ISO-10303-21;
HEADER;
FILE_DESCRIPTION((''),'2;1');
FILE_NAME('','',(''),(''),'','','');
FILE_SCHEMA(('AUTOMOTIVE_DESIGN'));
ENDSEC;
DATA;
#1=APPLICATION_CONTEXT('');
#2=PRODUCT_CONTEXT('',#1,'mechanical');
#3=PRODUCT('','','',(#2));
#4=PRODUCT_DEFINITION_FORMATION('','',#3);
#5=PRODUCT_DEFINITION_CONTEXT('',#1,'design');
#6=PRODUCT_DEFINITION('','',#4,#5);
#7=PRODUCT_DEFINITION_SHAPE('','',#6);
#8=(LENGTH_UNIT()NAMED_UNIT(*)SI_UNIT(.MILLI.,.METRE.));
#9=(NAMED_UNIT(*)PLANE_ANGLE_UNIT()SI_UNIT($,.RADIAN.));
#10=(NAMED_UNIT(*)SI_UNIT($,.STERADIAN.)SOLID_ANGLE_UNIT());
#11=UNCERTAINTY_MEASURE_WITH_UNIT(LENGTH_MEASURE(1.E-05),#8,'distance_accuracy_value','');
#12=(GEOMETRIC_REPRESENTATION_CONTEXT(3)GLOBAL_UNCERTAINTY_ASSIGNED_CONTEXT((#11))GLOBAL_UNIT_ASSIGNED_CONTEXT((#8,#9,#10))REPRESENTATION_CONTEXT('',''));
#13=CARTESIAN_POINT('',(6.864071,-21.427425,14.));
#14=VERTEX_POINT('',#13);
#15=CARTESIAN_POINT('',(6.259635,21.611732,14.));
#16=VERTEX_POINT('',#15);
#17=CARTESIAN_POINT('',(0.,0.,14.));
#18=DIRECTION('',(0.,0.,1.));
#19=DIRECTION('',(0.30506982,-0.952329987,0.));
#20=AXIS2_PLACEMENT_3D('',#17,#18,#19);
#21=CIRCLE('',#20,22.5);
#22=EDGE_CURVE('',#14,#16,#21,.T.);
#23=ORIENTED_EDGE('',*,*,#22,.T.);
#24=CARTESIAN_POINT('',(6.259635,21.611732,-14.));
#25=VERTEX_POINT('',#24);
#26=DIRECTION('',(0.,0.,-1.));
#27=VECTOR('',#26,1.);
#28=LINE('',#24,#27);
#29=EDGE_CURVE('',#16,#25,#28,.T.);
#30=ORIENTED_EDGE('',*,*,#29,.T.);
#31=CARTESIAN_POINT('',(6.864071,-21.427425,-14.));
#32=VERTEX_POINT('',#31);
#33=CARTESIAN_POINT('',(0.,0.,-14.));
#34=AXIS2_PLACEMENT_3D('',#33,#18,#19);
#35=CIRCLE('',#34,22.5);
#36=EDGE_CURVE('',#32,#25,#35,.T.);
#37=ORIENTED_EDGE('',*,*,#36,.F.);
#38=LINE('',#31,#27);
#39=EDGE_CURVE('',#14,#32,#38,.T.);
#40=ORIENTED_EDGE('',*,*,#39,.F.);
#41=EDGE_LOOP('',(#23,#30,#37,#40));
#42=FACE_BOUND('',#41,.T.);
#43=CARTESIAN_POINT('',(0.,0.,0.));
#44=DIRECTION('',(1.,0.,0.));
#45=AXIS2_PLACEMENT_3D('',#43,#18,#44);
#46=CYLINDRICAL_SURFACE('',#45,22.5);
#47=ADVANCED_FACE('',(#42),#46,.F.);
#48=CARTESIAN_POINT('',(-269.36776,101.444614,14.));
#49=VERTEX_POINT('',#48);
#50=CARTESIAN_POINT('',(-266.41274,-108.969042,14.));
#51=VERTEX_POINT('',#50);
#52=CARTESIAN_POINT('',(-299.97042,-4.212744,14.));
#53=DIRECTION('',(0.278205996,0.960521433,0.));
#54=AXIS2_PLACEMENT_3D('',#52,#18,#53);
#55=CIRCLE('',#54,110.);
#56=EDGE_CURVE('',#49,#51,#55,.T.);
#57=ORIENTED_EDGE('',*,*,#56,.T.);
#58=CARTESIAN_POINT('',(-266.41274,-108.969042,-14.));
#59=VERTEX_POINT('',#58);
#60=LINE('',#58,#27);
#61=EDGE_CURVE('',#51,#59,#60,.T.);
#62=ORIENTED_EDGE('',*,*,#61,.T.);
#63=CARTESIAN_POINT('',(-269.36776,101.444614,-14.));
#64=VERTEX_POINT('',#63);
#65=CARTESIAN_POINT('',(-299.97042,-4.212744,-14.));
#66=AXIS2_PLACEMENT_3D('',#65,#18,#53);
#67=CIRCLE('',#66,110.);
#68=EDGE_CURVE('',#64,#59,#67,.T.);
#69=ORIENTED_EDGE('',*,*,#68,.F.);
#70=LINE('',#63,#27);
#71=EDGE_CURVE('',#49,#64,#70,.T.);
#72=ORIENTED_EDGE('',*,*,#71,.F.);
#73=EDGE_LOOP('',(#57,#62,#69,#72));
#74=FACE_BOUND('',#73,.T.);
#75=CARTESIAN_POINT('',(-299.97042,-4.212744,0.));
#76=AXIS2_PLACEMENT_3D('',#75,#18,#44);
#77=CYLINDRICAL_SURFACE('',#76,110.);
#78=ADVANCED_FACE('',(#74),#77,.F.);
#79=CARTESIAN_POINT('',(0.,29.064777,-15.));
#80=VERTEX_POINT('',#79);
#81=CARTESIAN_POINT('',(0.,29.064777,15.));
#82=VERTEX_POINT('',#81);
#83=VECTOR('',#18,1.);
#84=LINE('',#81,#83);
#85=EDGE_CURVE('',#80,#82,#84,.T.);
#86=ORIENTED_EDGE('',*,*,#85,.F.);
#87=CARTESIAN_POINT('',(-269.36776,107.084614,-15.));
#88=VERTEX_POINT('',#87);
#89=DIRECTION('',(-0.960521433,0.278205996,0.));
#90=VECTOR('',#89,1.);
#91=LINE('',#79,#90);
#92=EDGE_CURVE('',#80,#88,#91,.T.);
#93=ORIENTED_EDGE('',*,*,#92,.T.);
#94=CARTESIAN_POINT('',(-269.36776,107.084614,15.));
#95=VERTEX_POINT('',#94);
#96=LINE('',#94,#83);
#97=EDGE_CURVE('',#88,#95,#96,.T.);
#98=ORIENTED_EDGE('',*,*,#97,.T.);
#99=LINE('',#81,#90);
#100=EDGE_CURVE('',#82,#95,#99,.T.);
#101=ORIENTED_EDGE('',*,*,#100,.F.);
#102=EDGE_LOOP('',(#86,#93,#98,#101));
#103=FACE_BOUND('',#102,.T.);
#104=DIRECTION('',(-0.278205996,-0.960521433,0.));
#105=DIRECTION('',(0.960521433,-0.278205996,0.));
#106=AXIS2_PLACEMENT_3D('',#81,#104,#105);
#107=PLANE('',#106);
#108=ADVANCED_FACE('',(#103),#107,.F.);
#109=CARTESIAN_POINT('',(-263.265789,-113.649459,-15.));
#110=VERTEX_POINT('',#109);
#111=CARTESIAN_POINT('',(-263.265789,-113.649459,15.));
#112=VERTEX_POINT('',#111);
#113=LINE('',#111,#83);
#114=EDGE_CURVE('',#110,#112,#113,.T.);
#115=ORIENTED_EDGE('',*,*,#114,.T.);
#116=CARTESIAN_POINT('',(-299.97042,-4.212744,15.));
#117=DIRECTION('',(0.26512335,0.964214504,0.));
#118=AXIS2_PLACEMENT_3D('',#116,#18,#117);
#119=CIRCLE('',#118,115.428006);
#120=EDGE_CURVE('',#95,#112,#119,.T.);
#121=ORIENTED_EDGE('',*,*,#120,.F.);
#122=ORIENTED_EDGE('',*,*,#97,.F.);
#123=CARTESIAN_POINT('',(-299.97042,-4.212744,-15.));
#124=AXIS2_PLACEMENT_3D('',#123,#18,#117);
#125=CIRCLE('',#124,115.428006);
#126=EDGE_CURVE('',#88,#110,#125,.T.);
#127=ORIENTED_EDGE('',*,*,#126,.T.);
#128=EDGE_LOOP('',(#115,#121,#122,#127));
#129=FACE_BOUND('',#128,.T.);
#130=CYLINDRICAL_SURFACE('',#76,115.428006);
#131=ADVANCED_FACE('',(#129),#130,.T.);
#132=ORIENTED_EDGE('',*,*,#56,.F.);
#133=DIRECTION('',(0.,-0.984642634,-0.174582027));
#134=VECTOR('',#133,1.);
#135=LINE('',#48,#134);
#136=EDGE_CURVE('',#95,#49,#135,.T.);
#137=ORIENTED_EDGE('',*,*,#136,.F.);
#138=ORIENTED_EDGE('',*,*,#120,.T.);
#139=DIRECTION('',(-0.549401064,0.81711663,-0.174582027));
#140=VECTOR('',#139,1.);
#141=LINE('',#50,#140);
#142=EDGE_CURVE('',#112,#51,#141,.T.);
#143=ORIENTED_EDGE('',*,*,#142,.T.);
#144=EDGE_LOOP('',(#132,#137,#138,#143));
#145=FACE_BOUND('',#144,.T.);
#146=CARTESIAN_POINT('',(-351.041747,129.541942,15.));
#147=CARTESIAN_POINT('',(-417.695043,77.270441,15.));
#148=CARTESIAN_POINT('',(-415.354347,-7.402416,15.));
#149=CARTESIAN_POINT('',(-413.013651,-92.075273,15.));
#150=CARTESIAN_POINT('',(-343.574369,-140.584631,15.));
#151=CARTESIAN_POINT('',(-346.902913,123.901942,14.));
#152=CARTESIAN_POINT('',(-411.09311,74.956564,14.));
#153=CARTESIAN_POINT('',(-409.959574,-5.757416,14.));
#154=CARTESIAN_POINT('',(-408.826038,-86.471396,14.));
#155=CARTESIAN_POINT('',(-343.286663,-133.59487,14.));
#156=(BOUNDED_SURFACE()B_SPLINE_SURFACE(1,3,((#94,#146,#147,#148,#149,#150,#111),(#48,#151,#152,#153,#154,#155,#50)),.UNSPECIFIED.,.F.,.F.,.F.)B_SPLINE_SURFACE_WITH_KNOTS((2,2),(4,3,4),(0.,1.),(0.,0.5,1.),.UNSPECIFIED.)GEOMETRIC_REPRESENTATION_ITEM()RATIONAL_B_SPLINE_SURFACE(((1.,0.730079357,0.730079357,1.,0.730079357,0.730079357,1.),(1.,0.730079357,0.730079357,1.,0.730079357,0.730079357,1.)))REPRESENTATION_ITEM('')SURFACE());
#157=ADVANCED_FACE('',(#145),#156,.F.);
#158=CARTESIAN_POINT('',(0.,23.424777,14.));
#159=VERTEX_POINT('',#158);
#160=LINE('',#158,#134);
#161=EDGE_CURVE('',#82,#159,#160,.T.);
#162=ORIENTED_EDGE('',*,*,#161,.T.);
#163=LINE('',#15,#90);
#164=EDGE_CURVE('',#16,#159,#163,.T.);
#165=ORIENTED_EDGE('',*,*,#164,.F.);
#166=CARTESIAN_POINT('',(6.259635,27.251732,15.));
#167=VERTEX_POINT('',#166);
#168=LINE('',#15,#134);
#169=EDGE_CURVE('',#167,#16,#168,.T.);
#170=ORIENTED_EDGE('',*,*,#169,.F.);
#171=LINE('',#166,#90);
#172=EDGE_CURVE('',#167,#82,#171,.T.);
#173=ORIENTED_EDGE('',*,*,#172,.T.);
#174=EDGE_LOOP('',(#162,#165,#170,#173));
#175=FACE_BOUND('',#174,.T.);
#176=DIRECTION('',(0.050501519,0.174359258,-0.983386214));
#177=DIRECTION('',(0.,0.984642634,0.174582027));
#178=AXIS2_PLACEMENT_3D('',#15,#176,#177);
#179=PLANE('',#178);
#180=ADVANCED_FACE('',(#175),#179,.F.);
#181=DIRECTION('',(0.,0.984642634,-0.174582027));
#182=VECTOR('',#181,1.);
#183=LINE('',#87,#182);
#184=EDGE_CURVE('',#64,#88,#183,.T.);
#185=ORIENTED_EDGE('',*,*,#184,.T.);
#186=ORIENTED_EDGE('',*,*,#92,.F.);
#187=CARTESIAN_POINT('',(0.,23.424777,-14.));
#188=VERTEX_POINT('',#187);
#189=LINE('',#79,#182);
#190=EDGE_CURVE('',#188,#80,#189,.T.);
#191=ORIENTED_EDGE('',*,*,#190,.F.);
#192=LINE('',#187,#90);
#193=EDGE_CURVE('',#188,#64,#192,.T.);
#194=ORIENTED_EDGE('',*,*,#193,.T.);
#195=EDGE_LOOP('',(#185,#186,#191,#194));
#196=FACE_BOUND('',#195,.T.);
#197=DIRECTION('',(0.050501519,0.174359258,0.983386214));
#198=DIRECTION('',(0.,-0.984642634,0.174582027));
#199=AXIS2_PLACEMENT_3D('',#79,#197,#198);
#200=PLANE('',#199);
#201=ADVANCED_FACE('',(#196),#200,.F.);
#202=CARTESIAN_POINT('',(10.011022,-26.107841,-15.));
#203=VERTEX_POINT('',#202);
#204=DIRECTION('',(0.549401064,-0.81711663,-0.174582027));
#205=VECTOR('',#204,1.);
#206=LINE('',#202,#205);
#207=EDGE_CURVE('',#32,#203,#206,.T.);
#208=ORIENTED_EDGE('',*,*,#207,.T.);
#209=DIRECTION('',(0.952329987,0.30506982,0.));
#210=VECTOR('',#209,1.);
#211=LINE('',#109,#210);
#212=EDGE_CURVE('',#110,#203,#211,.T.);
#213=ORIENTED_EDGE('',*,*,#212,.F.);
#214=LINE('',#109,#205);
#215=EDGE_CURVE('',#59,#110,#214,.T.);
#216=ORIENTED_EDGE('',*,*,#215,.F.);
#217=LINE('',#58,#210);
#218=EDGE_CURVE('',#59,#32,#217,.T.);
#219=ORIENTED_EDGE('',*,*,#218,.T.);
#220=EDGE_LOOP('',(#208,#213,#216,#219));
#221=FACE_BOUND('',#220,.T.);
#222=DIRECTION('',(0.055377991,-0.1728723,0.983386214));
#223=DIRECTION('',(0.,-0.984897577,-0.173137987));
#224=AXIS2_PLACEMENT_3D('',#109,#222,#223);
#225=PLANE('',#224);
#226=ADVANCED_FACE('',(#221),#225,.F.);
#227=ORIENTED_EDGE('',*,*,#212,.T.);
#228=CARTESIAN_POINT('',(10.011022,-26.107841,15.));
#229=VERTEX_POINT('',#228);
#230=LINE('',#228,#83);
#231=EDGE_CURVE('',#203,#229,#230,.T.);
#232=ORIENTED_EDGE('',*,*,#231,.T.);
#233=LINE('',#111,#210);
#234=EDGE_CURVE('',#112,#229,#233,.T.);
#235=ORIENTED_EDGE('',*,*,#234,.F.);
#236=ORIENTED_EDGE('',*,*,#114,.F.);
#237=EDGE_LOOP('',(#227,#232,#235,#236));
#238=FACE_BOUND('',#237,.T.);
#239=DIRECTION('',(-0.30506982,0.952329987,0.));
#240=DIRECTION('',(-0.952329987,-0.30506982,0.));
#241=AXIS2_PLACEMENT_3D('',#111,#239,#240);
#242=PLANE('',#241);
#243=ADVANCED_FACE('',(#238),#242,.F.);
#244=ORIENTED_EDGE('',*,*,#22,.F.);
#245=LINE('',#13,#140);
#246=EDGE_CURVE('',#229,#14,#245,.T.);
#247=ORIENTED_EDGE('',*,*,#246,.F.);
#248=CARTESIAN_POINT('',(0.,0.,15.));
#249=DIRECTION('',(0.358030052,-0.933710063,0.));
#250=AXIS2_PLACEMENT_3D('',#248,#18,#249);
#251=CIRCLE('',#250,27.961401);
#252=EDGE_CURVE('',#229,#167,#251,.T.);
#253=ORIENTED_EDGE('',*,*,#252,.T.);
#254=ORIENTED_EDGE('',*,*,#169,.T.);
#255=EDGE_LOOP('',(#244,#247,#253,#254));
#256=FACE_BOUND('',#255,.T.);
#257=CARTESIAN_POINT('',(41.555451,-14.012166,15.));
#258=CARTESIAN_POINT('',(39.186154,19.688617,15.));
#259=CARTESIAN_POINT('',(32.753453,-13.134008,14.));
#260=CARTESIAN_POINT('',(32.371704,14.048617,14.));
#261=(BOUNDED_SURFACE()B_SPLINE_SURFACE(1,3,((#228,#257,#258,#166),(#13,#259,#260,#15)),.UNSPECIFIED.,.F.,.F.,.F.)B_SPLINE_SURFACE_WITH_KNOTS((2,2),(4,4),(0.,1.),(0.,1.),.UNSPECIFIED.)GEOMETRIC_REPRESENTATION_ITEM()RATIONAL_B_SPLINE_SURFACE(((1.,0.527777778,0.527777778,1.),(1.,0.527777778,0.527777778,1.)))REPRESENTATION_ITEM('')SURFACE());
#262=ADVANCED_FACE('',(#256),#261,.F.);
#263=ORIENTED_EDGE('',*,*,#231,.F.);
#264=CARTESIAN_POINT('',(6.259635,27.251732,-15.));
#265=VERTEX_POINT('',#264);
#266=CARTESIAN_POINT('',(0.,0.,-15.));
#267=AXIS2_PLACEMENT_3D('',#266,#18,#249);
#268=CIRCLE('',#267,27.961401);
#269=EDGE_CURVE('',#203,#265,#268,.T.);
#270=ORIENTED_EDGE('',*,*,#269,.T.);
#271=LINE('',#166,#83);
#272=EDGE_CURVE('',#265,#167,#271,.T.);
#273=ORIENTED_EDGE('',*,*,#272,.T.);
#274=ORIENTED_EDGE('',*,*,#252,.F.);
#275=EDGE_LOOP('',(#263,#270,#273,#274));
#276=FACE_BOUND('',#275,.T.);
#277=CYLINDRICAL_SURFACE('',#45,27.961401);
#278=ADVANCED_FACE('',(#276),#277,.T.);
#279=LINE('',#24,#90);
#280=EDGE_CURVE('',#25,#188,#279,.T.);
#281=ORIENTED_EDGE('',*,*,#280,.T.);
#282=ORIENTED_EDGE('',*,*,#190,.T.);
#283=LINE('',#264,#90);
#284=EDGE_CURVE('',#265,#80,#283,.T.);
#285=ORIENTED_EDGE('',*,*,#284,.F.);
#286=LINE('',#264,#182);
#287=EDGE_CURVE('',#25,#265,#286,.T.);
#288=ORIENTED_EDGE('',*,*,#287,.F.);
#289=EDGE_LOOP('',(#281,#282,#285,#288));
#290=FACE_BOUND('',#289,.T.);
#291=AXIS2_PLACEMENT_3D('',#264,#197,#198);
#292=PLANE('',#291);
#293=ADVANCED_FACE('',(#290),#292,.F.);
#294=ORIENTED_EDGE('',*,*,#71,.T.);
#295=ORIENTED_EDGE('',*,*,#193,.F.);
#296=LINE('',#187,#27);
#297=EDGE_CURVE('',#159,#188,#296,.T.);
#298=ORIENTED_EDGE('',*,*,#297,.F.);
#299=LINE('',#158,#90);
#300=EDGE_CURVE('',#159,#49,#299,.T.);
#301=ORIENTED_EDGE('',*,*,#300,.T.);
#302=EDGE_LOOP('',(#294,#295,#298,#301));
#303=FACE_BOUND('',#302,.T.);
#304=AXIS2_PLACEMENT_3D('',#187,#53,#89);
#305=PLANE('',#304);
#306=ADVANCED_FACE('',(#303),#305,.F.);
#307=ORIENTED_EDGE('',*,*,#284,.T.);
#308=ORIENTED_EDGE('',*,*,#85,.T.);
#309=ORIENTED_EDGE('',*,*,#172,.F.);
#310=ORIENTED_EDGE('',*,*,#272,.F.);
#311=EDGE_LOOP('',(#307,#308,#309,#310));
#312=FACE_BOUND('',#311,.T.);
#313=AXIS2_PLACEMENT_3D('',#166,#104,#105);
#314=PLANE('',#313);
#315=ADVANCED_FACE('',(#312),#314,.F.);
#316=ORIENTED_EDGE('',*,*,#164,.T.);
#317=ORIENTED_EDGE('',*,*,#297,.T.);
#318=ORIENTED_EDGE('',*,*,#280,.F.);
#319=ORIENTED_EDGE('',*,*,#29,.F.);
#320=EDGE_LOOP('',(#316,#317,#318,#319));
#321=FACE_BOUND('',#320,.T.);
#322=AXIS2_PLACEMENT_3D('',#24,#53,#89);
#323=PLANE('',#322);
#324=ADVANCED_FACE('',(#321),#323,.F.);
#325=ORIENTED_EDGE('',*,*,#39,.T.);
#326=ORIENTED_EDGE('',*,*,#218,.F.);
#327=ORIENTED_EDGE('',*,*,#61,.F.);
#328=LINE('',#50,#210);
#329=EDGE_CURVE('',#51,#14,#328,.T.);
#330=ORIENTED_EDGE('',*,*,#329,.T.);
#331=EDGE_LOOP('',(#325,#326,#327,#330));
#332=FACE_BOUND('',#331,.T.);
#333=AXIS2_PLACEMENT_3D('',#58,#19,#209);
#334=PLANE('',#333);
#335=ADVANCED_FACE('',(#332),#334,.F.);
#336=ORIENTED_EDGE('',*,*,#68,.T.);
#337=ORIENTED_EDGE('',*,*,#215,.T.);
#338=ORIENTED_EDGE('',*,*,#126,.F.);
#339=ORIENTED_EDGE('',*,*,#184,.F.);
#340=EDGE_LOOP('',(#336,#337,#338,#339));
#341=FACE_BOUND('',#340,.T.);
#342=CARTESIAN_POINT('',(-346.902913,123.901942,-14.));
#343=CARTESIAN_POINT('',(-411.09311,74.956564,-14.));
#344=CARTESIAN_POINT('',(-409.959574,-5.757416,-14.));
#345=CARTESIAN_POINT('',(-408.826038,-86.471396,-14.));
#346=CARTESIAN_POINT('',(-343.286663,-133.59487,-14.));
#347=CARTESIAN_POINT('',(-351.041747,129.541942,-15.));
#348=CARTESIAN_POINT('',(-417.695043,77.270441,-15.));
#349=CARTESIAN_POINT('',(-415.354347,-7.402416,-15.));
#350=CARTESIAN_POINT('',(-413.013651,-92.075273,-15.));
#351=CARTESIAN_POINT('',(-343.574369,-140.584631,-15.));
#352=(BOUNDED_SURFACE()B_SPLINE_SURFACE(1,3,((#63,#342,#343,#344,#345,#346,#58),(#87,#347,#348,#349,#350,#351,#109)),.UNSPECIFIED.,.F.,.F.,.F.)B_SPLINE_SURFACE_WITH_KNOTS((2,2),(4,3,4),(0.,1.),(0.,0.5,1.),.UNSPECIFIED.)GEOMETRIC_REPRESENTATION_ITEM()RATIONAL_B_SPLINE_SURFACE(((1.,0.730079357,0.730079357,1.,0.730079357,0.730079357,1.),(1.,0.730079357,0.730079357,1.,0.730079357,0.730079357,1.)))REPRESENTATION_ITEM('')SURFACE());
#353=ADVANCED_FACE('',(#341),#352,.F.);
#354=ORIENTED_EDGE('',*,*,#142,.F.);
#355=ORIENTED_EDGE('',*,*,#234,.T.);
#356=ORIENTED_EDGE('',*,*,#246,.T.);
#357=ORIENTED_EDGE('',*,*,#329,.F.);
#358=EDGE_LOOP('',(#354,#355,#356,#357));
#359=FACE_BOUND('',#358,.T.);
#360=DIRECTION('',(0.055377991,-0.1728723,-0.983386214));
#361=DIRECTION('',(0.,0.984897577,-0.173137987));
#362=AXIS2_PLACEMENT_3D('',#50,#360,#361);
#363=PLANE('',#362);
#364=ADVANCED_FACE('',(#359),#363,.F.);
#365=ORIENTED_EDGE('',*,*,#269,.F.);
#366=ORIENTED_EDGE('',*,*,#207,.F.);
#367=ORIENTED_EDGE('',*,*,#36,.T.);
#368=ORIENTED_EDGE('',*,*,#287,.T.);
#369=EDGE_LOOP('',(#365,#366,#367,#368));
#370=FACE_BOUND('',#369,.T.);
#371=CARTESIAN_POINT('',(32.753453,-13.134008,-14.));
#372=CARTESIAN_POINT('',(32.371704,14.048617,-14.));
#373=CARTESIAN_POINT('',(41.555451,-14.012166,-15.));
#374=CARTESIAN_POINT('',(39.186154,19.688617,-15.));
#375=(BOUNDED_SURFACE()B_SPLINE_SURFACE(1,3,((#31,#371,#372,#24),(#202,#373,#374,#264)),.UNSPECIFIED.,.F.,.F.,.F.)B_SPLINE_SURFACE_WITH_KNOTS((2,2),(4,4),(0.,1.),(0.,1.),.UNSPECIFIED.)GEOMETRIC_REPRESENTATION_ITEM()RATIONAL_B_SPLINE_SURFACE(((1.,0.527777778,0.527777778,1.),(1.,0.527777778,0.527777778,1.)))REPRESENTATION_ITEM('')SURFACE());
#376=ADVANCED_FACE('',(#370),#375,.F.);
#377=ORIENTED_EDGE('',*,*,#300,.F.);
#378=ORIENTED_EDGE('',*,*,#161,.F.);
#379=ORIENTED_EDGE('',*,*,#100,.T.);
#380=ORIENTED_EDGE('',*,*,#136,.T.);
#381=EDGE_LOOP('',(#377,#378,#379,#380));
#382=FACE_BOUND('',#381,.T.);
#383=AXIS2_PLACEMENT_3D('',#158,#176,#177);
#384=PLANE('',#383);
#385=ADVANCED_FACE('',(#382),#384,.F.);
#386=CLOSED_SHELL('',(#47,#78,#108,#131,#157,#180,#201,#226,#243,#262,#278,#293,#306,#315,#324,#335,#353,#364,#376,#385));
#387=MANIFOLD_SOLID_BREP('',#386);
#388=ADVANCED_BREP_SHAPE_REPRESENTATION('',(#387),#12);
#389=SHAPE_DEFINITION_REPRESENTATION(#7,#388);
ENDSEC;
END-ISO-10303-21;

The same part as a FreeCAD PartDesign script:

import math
import FreeCAD as App
import Part
import Sketcher

V = App.Vector

doc = App.newDocument("Part")
body = doc.addObject("PartDesign::Body", "Body")

# Sketch on YZ plane
sketch1 = body.newObject("Sketcher::SketchObject", "Sketch")
sketch1.AttachmentSupport = (doc.getObject("YZ_Plane"), [""])
sketch1.MapMode = "FlatFace"
sketch1.addGeometry([
    Part.LineSegment(V(29, -15, 0), V(29, 15, 0)),
    Part.LineSegment(V(29, 15, 0), V(23, 14, 0)),
    Part.LineSegment(V(23, 14, 0), V(23, -14, 0)),
    Part.LineSegment(V(23, -14, 0), V(29, -15, 0)),
], False)
sketch1.addConstraint([
    Sketcher.Constraint("Coincident", 0, 2, 1, 1),
    Sketcher.Constraint("Coincident", 1, 2, 2, 1),
    Sketcher.Constraint("Coincident", 2, 2, 3, 1),
    Sketcher.Constraint("Coincident", 3, 2, 0, 1),
    Sketcher.Constraint("Vertical", 0),
    Sketcher.Constraint("Vertical", 2),
    Sketcher.Constraint("Equal", 1, 3),
    Sketcher.Constraint("DistanceY", 0, 1, 0, 2, 30.0),
    Sketcher.Constraint("DistanceY", 2, 2, 2, 1, 28.0),
    Sketcher.Constraint("DistanceY", -1, 1, 0, 2, 15.0),
    Sketcher.Constraint("DistanceX", 1, 2, 0, 2, 5.64),
    Sketcher.Constraint("DistanceX", -1, 1, 0, 2, 29.064777),
])

# Sketch on XY plane
sketch2 = body.newObject("Sketcher::SketchObject", "Sketch001")
sketch2.AttachmentSupport = (doc.getObject("XY_Plane"), [""])
sketch2.MapMode = "FlatFace"
sketch2.addGeometry([
    Part.LineSegment(V(-269, 101, 0), V(6, 22, 0)),
    Part.ArcOfCircle(Part.Circle(V(0, 0, 0), V(0, 0, 1), 22), math.radians(-72), math.radians(74)),
    Part.LineSegment(V(7, -21, 0), V(-266, -109, 0)),
    Part.ArcOfCircle(Part.Circle(V(-300, -4, 0), V(0, 0, 1), 110), math.radians(74), math.radians(288)),
], False)
sketch2.addConstraint([
    Sketcher.Constraint("Tangent", 0, 2, 1, 2),
    Sketcher.Constraint("Tangent", 1, 1, 2, 1),
    Sketcher.Constraint("Tangent", 2, 2, 3, 2),
    Sketcher.Constraint("Tangent", 3, 1, 0, 1),
    Sketcher.Constraint("Coincident", 1, 3, -1, 1),
    Sketcher.Constraint("Radius", 3, 110.0),
    Sketcher.Constraint("Radius", 1, 22.5),
    Sketcher.Constraint("DistanceY", 2, 2, 3, 3, 104.756299),
    Sketcher.Constraint("DistanceX", 3, 3, -1, 1, 299.97042),
])
doc.recompute()

additivepipe = body.newObject("PartDesign::AdditivePipe", "AdditivePipe")
additivepipe.Profile = sketch1
additivepipe.Spine = (sketch2, ["Edge1", "Edge2", "Edge3", "Edge4"])

doc.recompute()
